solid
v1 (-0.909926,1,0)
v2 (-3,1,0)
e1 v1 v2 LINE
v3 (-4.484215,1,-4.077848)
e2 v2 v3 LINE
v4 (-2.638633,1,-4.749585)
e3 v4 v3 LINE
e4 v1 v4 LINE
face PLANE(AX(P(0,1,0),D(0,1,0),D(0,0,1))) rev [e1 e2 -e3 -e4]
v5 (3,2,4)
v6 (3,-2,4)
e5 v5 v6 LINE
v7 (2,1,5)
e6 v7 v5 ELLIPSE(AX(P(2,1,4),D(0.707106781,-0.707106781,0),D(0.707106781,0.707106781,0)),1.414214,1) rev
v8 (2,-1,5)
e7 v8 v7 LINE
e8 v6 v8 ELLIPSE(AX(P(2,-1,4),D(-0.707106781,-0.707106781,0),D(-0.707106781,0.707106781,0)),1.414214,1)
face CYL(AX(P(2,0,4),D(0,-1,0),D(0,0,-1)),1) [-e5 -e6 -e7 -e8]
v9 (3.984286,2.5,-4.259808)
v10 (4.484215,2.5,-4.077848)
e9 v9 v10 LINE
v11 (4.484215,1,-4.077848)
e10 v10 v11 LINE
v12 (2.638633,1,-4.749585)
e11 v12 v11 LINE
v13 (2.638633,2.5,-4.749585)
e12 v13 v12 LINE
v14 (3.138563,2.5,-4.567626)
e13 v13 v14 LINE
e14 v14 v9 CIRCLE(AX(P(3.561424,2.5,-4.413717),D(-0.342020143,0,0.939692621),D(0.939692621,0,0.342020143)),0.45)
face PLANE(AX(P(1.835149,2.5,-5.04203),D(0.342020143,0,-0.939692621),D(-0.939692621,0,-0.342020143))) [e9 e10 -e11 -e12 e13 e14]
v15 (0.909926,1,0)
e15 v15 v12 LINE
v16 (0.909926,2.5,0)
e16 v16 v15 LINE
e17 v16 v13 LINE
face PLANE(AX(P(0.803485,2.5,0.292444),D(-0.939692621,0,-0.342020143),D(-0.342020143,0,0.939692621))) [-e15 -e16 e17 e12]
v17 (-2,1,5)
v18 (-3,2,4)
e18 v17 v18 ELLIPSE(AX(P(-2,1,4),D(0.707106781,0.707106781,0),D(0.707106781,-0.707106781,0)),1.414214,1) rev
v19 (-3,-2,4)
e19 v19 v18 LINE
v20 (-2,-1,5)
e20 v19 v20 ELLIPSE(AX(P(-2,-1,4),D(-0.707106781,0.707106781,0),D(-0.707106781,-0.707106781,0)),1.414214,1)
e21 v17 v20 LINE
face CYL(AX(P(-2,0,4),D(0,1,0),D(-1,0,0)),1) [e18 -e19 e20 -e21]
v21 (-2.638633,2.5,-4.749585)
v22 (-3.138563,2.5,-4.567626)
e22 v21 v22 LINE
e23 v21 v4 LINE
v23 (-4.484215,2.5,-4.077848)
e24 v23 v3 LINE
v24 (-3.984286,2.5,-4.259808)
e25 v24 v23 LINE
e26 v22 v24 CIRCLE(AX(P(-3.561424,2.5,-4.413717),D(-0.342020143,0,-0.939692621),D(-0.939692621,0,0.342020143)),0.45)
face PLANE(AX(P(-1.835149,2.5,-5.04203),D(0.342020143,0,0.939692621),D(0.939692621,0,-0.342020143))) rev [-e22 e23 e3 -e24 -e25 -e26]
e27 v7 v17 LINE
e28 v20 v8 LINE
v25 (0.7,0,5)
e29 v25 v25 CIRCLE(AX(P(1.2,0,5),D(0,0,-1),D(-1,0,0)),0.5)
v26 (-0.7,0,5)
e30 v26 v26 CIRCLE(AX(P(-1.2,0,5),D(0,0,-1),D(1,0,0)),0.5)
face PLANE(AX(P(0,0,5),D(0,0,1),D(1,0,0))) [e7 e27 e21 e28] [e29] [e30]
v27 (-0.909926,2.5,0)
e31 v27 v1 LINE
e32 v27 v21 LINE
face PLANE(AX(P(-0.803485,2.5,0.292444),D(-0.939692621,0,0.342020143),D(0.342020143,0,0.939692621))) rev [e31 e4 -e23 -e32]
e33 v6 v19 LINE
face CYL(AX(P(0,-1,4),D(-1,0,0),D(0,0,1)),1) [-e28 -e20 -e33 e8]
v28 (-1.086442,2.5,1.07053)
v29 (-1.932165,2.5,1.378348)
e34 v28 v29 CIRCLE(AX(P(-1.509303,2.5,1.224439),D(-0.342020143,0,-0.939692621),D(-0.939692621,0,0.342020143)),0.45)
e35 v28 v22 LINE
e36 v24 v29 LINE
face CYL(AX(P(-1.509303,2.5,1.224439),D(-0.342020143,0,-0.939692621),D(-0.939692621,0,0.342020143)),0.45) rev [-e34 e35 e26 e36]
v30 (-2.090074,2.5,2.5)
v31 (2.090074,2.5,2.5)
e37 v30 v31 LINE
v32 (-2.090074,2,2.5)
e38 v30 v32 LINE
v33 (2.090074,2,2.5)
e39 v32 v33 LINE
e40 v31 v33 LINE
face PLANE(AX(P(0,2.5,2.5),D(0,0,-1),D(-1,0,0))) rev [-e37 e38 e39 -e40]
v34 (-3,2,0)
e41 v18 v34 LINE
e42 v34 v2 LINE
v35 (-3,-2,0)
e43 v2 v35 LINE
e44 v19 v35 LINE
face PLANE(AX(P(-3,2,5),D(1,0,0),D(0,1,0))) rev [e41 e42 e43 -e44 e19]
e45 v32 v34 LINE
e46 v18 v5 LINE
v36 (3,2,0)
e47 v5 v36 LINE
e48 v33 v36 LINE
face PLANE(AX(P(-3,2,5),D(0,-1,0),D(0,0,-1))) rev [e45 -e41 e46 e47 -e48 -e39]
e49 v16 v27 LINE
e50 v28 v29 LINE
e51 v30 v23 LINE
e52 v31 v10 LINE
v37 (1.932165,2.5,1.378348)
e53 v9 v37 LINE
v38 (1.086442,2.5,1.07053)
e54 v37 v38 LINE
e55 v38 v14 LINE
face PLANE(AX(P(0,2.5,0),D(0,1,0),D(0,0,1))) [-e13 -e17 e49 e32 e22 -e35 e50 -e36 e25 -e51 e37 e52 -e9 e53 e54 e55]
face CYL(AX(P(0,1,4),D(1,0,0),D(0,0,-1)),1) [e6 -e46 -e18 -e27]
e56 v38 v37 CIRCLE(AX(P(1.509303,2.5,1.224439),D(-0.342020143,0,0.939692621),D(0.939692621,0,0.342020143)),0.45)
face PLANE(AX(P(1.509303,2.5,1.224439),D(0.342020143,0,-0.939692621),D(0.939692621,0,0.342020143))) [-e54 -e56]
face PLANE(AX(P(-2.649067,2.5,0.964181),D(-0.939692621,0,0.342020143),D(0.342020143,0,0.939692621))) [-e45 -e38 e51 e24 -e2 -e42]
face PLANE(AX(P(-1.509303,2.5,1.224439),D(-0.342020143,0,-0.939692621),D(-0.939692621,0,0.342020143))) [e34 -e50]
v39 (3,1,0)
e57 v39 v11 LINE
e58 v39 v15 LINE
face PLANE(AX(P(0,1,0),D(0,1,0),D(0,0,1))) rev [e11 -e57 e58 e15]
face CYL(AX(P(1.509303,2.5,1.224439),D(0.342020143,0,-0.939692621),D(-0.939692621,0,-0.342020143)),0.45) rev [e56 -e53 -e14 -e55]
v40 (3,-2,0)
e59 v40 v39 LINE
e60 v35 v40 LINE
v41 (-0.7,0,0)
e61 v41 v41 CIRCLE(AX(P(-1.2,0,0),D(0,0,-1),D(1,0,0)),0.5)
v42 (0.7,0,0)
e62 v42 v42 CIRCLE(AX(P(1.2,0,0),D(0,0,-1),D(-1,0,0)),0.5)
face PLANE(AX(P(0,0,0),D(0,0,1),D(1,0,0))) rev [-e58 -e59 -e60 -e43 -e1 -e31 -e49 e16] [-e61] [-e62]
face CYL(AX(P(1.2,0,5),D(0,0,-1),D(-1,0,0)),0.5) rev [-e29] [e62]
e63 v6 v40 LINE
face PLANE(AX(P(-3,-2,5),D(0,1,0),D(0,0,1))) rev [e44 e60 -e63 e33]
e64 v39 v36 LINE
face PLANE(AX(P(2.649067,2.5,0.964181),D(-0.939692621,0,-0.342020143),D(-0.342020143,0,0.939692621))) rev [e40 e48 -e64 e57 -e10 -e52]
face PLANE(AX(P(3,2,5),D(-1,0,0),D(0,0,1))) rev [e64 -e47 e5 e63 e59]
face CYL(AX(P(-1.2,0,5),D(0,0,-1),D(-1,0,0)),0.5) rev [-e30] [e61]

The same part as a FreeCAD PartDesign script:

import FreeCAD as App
import Part
import Sketcher
from FreeCAD import Vector
Q = App.Units.Quantity


def edges_at(feature, points):
    """Names of the edges that pass closest to the given points."""
    edges = feature.Shape.Edges
    near = lambda p: min(range(len(edges)), key=lambda i: edges[i].distToShape(Part.Vertex(*p))[0])
    return sorted({f"Edge{near(p) + 1}" for p in points})

doc = App.newDocument("Part")
params = doc.addObject("Spreadsheet::Sheet", "Params")
for row, (alias, value) in enumerate([
    ("sketch1_width", "6 mm"),
    ("sketch1_height", "4 mm"),
    ("pad1_length", "5 mm"),
    ("sketch2_diameter", "1 mm"),
    ("pocket1_length", "5 mm"),
    ("pad2_length", "0.5 mm"),
    ("pad3_length", "1 mm"),
    ("sketch5_diameter", "0.9 mm"),
    ("pocket2_length", "6 mm"),
    ("fillet_radius", "1 mm"),
], start=1):
    params.set(f"A{row}", alias)
    params.set(f"B{row}", "=" + value)
    params.setAlias(f"B{row}", alias)

body = doc.addObject("PartDesign::Body", "Body")

# Sketch on XY plane
sketch1 = body.newObject("Sketcher::SketchObject", "Sketch")
sketch1.AttachmentSupport = (doc.getObject("XY_Plane"), [""])
sketch1.MapMode = "FlatFace"
sketch1.addGeometry(Part.LineSegment(Vector(-3, 2, 0), Vector(-3, -2, 0)), False)
sketch1.addGeometry(Part.LineSegment(Vector(-3, -2, 0), Vector(3, -2, 0)), False)
sketch1.addGeometry(Part.LineSegment(Vector(3, -2, 0), Vector(3, 2, 0)), False)
sketch1.addGeometry(Part.LineSegment(Vector(3, 2, 0), Vector(-3, 2, 0)), False)
sketch1.addConstraint(Sketcher.Constraint("Coincident", 0, 2, 1, 1))
sketch1.addConstraint(Sketcher.Constraint("Coincident", 1, 2, 2, 1))
sketch1.addConstraint(Sketcher.Constraint("Coincident", 2, 2, 3, 1))
sketch1.addConstraint(Sketcher.Constraint("Coincident", 3, 2, 0, 1))
sketch1.addConstraint(Sketcher.Constraint("Vertical", 0))
sketch1.addConstraint(Sketcher.Constraint("Horizontal", 1))
sketch1.addConstraint(Sketcher.Constraint("Vertical", 2))
sketch1.addConstraint(Sketcher.Constraint("Horizontal", 3))
sketch1.addConstraint(Sketcher.Constraint("Symmetric", 0, 2, 2, 2, -1, 1))
sketch1.addConstraint(Sketcher.Constraint("DistanceX", 1, 1, 1, 2, Q("6 mm")))
sketch1.addConstraint(Sketcher.Constraint("DistanceY", 0, 2, 0, 1, Q("4 mm")))
sketch1.setExpression("Constraints[9]", "Params.sketch1_width")
sketch1.setExpression("Constraints[10]", "Params.sketch1_height")
pad1 = body.newObject("PartDesign::Pad", "Pad")
pad1.Profile = sketch1
pad1.setExpression("Length", "Params.pad1_length")

# Sketch on XY plane
sketch2 = body.newObject("Sketcher::SketchObject", "Sketch001")
sketch2.AttachmentSupport = (doc.getObject("XY_Plane"), [""])
sketch2.MapMode = "FlatFace"
sketch2.addGeometry(Part.Circle(Vector(1.2, 0, 0), Vector(0, 0, 1), 0.5), False)
sketch2.addGeometry(Part.Circle(Vector(-1.2, 0, 0), Vector(0, 0, 1), 0.5), False)
sketch2.addConstraint(Sketcher.Constraint("Equal", 0, 1))
sketch2.addConstraint(Sketcher.Constraint("Symmetric", 0, 3, 1, 3, -1, 1))
sketch2.addConstraint(Sketcher.Constraint("PointOnObject", 0, 3, -1))
sketch2.addConstraint(Sketcher.Constraint("Diameter", 0, Q("1 mm")))
sketch2.addConstraint(Sketcher.Constraint("DistanceX", -1, 1, 0, 3, Q("1.2 mm")))
sketch2.setExpression("Constraints[3]", "Params.sketch2_diameter")
pocket1 = body.newObject("PartDesign::Pocket", "Pocket")
pocket1.Profile = sketch2
pocket1.setExpression("Length", "Params.pocket1_length")
pocket1.Reversed = True

# Sketch on XZ plane
sketch3 = body.newObject("Sketcher::SketchObject", "Sketch002")
sketch3.AttachmentSupport = (doc.getObject("XZ_Plane"), [""])
sketch3.MapMode = "FlatFace"
sketch3.AttachmentOffset = App.Placement(Vector(0, 0, -2), App.Rotation())
sketch3.addGeometry(Part.LineSegment(Vector(2.1, 2.5, 0), Vector(3, 0, 0)), False)
sketch3.addGeometry(Part.LineSegment(Vector(3, 0, 0), Vector(4.5, -4.1, 0)), False)
sketch3.addGeometry(Part.LineSegment(Vector(4.5, -4.1, 0), Vector(2.6, -4.7, 0)), False)
sketch3.addGeometry(Part.LineSegment(Vector(2.6, -4.7, 0), Vector(0.9, 0, 0)), False)
sketch3.addGeometry(Part.LineSegment(Vector(0.9, 0, 0), Vector(-0.9, 0, 0)), False)
sketch3.addGeometry(Part.LineSegment(Vector(-0.9, 0, 0), Vector(-2.6, -4.7, 0)), False)
sketch3.addGeometry(Part.LineSegment(Vector(-2.6, -4.7, 0), Vector(-4.5, -4.1, 0)), False)
sketch3.addGeometry(Part.LineSegment(Vector(-4.5, -4.1, 0), Vector(-3, 0, 0)), False)
sketch3.addGeometry(Part.LineSegment(Vector(-3, 0, 0), Vector(-2.1, 2.5, 0)), False)
sketch3.addGeometry(Part.LineSegment(Vector(-2.1, 2.5, 0), Vector(2.1, 2.5, 0)), False)
sketch3.addConstraint(Sketcher.Constraint("Coincident", 0, 2, 1, 1))
sketch3.addConstraint(Sketcher.Constraint("Coincident", 1, 2, 2, 1))
sketch3.addConstraint(Sketcher.Constraint("Coincident", 2, 2, 3, 1))
sketch3.addConstraint(Sketcher.Constraint("Coincident", 3, 2, 4, 1))
sketch3.addConstraint(Sketcher.Constraint("Coincident", 4, 2, 5, 1))
sketch3.addConstraint(Sketcher.Constraint("Coincident", 5, 2, 6, 1))
sketch3.addConstraint(Sketcher.Constraint("Coincident", 6, 2, 7, 1))
sketch3.addConstraint(Sketcher.Constraint("Coincident", 7, 2, 8, 1))
sketch3.addConstraint(Sketcher.Constraint("Coincident", 8, 2, 9, 1))
sketch3.addConstraint(Sketcher.Constraint("Coincident", 9, 2, 0, 1))
sketch3.addConstraint(Sketcher.Constraint("Horizontal", 4))
sketch3.addConstraint(Sketcher.Constraint("Horizontal", 9))
sketch3.addConstraint(Sketcher.Constraint("Symmetric", 3, 2, 4, 2, -1, 1))
sketch3.addConstraint(Sketcher.Constraint("Symmetric", 0, 2, 7, 2, -1, 1))
sketch3.addConstraint(Sketcher.Constraint("Symmetric", 2, 2, 5, 2, -2))
sketch3.addConstraint(Sketcher.Constraint("Symmetric", 1, 2, 6, 2, -2))
sketch3.addConstraint(Sketcher.Constraint("PointOnObject", 0, 2, -1))
sketch3.addConstraint(Sketcher.Constraint("Parallel", 0, 1))
sketch3.addConstraint(Sketcher.Constraint("Perpendicular", 1, 2))
sketch3.addConstraint(Sketcher.Constraint("Perpendicular", 2, 3))
sketch3.addConstraint(Sketcher.Constraint("Parallel", 7, 8))
sketch3.addConstraint(Sketcher.Constraint("Angle", 0, Q("-70 deg")))
sketch3.addConstraint(Sketcher.Constraint("DistanceX", -1, 1, 0, 2, Q("3 mm")))
sketch3.addConstraint(Sketcher.Constraint("DistanceX", 8, 2, 3, 2, Q("3 mm")))
sketch3.addConstraint(Sketcher.Constraint("DistanceY", -1, 1, 8, 2, Q("2.5 mm")))
sketch3.addConstraint(Sketcher.Constraint("DistanceY", 1, 2, -1, 1, Q("4.077848 mm")))
pad2 = body.newObject("PartDesign::Pad", "Pad001")
pad2.Profile = sketch3
pad2.setExpression("Length", "Params.pad2_length")
pad2.Reversed = True

# Sketch on XZ plane
sketch4 = body.newObject("Sketcher::SketchObject", "Sketch003")
sketch4.AttachmentSupport = (doc.getObject("XZ_Plane"), [""])
sketch4.MapMode = "FlatFace"
sketch4.AttachmentOffset = App.Placement(Vector(0, 0, -2), App.Rotation())
sketch4.addGeometry(Part.LineSegment(Vector(-0.9, 0, 0), Vector(-2.6, -4.7, 0)), False)
sketch4.addGeometry(Part.LineSegment(Vector(-2.6, -4.7, 0), Vector(-4.5, -4.1, 0)), False)
sketch4.addGeometry(Part.LineSegment(Vector(-4.5, -4.1, 0), Vector(-3, 0, 0)), False)
sketch4.addGeometry(Part.LineSegment(Vector(-3, 0, 0), Vector(-2.1, 2.5, 0)), False)
sketch4.addGeometry(Part.LineSegment(Vector(-2.1, 2.5, 0), Vector(0, 2.5, 0)), False)
sketch4.addGeometry(Part.LineSegment(Vector(0, 2.5, 0), Vector(-0.9, 0, 0)), False)
sketch4.addGeometry(Part.LineSegment(Vector(2.6, -4.7, 0), Vector(0.9, 0, 0)), False)
sketch4.addGeometry(Part.LineSegment(Vector(0.9, 0, 0), Vector(0, 2.5, 0)), False)
sketch4.addGeometry(Part.LineSegment(Vector(0, 2.5, 0), Vector(2.1, 2.5, 0)), False)
sketch4.addGeometry(Part.LineSegment(Vector(2.1, 2.5, 0), Vector(3, 0, 0)), False)
sketch4.addGeometry(Part.LineSegment(Vector(3, 0, 0), Vector(4.5, -4.1, 0)), False)
sketch4.addGeometry(Part.LineSegment(Vector(4.5, -4.1, 0), Vector(2.6, -4.7, 0)), False)
sketch4.addConstraint(Sketcher.Constraint("Coincident", 0, 2, 1, 1))
sketch4.addConstraint(Sketcher.Constraint("Coincident", 1, 2, 2, 1))
sketch4.addConstraint(Sketcher.Constraint("Coincident", 2, 2, 3, 1))
sketch4.addConstraint(Sketcher.Constraint("Coincident", 3, 2, 4, 1))
sketch4.addConstraint(Sketcher.Constraint("Coincident", 4, 2, 5, 1))
sketch4.addConstraint(Sketcher.Constraint("Coincident", 5, 2, 0, 1))
sketch4.addConstraint(Sketcher.Constraint("Coincident", 6, 2, 7, 1))
sketch4.addConstraint(Sketcher.Constraint("Coincident", 7, 2, 8, 1))
sketch4.addConstraint(Sketcher.Constraint("Coincident", 8, 2, 9, 1))
sketch4.addConstraint(Sketcher.Constraint("Coincident", 9, 2, 10, 1))
sketch4.addConstraint(Sketcher.Constraint("Coincident", 10, 2, 11, 1))
sketch4.addConstraint(Sketcher.Constraint("Coincident", 11, 2, 6, 1))
sketch4.addConstraint(Sketcher.Constraint("Horizontal", 4))
sketch4.addConstraint(Sketcher.Constraint("Horizontal", 8))
sketch4.addConstraint(Sketcher.Constraint("Coincident", 7, 2, 4, 2))
sketch4.addConstraint(Sketcher.Constraint("Symmetric", 5, 2, 6, 2, -1, 1))
sketch4.addConstraint(Sketcher.Constraint("Symmetric", 2, 2, 9, 2, -1, 1))
sketch4.addConstraint(Sketcher.Constraint("Symmetric", 1, 2, 10, 2, -2))
sketch4.addConstraint(Sketcher.Constraint("Symmetric", 0, 2, 11, 2, -2))
sketch4.addConstraint(Sketcher.Constraint("PointOnObject", 2, 2, -1))
sketch4.addConstraint(Sketcher.Constraint("PointOnObject", 4, 2, -2))
sketch4.addConstraint(Sketcher.Constraint("PointOnObject", 5, 2, -1))
sketch4.addConstraint(Sketcher.Constraint("Perpendicular", 0, 1))
sketch4.addConstraint(Sketcher.Constraint("Perpendicular", 1, 2))
sketch4.addConstraint(Sketcher.Constraint("Parallel", 2, 3))
sketch4.addConstraint(Sketcher.Constraint("Parallel", 3, 5))
sketch4.addConstraint(Sketcher.Constraint("Parallel", 7, 9))
sketch4.addConstraint(Sketcher.Constraint("Angle", 0, Q("-110 deg")))
sketch4.addConstraint(Sketcher.Constraint("DistanceX", 2, 2, -1, 1, Q("3 mm")))
sketch4.addConstraint(Sketcher.Constraint("DistanceY", -1, 1, 3, 2, Q("2.5 mm")))
sketch4.addConstraint(Sketcher.Constraint("DistanceY", 1, 2, -1, 1, Q("4.077848 mm")))
pad3 = body.newObject("PartDesign::Pad", "Pad002")
pad3.Profile = sketch4
pad3.setExpression("Length", "Params.pad3_length")

# Sketch on an angled plane
sketch5 = body.newObject("Sketcher::SketchObject", "Sketch004")
sketch5.Placement = App.Placement(Vector(-1.835149, 0, -5.04203), App.Rotation(Vector(-0.939692621, 0, 0.342020143), Vector(0, 1, 0), Vector(-0.342020143, 0, -0.939692621), "ZXY"))
sketch5.addGeometry(Part.Circle(Vector(1.84, 2.5, 0), Vector(0, 0, 1), 0.45), False)
sketch5.addConstraint(Sketcher.Constraint("Diameter", 0, Q("0.9 mm")))
sketch5.addConstraint(Sketcher.Constraint("DistanceY", -1, 1, 0, 3, Q("2.5 mm")))
sketch5.addConstraint(Sketcher.Constraint("DistanceX", -1, 1, 0, 3, Q("1.837064 mm")))
sketch5.setExpression("Constraints[0]", "Params.sketch5_diameter")
pocket2 = body.newObject("PartDesign::Pocket", "Pocket001")
pocket2.Profile = sketch5
pocket2.setExpression("Length", "Params.pocket2_length")
doc.recompute()

mirrored = body.newObject("PartDesign::Mirrored", "Mirrored")
mirrored.Originals = [pocket2]
mirrored.MirrorPlane = (doc.getObject("YZ_Plane"), [""])
body.Tip = mirrored
doc.recompute()

fillet = body.newObject("PartDesign::Fillet", "Fillet")
fillet.Base = (mirrored, edges_at(mirrored, [
    (-3, 0, 5),
    (0, -2, 5),
    (3, 0, 5),
    (0, 2, 5),
]))
fillet.setExpression("Radius", "Params.fillet_radius")

doc.recompute()
